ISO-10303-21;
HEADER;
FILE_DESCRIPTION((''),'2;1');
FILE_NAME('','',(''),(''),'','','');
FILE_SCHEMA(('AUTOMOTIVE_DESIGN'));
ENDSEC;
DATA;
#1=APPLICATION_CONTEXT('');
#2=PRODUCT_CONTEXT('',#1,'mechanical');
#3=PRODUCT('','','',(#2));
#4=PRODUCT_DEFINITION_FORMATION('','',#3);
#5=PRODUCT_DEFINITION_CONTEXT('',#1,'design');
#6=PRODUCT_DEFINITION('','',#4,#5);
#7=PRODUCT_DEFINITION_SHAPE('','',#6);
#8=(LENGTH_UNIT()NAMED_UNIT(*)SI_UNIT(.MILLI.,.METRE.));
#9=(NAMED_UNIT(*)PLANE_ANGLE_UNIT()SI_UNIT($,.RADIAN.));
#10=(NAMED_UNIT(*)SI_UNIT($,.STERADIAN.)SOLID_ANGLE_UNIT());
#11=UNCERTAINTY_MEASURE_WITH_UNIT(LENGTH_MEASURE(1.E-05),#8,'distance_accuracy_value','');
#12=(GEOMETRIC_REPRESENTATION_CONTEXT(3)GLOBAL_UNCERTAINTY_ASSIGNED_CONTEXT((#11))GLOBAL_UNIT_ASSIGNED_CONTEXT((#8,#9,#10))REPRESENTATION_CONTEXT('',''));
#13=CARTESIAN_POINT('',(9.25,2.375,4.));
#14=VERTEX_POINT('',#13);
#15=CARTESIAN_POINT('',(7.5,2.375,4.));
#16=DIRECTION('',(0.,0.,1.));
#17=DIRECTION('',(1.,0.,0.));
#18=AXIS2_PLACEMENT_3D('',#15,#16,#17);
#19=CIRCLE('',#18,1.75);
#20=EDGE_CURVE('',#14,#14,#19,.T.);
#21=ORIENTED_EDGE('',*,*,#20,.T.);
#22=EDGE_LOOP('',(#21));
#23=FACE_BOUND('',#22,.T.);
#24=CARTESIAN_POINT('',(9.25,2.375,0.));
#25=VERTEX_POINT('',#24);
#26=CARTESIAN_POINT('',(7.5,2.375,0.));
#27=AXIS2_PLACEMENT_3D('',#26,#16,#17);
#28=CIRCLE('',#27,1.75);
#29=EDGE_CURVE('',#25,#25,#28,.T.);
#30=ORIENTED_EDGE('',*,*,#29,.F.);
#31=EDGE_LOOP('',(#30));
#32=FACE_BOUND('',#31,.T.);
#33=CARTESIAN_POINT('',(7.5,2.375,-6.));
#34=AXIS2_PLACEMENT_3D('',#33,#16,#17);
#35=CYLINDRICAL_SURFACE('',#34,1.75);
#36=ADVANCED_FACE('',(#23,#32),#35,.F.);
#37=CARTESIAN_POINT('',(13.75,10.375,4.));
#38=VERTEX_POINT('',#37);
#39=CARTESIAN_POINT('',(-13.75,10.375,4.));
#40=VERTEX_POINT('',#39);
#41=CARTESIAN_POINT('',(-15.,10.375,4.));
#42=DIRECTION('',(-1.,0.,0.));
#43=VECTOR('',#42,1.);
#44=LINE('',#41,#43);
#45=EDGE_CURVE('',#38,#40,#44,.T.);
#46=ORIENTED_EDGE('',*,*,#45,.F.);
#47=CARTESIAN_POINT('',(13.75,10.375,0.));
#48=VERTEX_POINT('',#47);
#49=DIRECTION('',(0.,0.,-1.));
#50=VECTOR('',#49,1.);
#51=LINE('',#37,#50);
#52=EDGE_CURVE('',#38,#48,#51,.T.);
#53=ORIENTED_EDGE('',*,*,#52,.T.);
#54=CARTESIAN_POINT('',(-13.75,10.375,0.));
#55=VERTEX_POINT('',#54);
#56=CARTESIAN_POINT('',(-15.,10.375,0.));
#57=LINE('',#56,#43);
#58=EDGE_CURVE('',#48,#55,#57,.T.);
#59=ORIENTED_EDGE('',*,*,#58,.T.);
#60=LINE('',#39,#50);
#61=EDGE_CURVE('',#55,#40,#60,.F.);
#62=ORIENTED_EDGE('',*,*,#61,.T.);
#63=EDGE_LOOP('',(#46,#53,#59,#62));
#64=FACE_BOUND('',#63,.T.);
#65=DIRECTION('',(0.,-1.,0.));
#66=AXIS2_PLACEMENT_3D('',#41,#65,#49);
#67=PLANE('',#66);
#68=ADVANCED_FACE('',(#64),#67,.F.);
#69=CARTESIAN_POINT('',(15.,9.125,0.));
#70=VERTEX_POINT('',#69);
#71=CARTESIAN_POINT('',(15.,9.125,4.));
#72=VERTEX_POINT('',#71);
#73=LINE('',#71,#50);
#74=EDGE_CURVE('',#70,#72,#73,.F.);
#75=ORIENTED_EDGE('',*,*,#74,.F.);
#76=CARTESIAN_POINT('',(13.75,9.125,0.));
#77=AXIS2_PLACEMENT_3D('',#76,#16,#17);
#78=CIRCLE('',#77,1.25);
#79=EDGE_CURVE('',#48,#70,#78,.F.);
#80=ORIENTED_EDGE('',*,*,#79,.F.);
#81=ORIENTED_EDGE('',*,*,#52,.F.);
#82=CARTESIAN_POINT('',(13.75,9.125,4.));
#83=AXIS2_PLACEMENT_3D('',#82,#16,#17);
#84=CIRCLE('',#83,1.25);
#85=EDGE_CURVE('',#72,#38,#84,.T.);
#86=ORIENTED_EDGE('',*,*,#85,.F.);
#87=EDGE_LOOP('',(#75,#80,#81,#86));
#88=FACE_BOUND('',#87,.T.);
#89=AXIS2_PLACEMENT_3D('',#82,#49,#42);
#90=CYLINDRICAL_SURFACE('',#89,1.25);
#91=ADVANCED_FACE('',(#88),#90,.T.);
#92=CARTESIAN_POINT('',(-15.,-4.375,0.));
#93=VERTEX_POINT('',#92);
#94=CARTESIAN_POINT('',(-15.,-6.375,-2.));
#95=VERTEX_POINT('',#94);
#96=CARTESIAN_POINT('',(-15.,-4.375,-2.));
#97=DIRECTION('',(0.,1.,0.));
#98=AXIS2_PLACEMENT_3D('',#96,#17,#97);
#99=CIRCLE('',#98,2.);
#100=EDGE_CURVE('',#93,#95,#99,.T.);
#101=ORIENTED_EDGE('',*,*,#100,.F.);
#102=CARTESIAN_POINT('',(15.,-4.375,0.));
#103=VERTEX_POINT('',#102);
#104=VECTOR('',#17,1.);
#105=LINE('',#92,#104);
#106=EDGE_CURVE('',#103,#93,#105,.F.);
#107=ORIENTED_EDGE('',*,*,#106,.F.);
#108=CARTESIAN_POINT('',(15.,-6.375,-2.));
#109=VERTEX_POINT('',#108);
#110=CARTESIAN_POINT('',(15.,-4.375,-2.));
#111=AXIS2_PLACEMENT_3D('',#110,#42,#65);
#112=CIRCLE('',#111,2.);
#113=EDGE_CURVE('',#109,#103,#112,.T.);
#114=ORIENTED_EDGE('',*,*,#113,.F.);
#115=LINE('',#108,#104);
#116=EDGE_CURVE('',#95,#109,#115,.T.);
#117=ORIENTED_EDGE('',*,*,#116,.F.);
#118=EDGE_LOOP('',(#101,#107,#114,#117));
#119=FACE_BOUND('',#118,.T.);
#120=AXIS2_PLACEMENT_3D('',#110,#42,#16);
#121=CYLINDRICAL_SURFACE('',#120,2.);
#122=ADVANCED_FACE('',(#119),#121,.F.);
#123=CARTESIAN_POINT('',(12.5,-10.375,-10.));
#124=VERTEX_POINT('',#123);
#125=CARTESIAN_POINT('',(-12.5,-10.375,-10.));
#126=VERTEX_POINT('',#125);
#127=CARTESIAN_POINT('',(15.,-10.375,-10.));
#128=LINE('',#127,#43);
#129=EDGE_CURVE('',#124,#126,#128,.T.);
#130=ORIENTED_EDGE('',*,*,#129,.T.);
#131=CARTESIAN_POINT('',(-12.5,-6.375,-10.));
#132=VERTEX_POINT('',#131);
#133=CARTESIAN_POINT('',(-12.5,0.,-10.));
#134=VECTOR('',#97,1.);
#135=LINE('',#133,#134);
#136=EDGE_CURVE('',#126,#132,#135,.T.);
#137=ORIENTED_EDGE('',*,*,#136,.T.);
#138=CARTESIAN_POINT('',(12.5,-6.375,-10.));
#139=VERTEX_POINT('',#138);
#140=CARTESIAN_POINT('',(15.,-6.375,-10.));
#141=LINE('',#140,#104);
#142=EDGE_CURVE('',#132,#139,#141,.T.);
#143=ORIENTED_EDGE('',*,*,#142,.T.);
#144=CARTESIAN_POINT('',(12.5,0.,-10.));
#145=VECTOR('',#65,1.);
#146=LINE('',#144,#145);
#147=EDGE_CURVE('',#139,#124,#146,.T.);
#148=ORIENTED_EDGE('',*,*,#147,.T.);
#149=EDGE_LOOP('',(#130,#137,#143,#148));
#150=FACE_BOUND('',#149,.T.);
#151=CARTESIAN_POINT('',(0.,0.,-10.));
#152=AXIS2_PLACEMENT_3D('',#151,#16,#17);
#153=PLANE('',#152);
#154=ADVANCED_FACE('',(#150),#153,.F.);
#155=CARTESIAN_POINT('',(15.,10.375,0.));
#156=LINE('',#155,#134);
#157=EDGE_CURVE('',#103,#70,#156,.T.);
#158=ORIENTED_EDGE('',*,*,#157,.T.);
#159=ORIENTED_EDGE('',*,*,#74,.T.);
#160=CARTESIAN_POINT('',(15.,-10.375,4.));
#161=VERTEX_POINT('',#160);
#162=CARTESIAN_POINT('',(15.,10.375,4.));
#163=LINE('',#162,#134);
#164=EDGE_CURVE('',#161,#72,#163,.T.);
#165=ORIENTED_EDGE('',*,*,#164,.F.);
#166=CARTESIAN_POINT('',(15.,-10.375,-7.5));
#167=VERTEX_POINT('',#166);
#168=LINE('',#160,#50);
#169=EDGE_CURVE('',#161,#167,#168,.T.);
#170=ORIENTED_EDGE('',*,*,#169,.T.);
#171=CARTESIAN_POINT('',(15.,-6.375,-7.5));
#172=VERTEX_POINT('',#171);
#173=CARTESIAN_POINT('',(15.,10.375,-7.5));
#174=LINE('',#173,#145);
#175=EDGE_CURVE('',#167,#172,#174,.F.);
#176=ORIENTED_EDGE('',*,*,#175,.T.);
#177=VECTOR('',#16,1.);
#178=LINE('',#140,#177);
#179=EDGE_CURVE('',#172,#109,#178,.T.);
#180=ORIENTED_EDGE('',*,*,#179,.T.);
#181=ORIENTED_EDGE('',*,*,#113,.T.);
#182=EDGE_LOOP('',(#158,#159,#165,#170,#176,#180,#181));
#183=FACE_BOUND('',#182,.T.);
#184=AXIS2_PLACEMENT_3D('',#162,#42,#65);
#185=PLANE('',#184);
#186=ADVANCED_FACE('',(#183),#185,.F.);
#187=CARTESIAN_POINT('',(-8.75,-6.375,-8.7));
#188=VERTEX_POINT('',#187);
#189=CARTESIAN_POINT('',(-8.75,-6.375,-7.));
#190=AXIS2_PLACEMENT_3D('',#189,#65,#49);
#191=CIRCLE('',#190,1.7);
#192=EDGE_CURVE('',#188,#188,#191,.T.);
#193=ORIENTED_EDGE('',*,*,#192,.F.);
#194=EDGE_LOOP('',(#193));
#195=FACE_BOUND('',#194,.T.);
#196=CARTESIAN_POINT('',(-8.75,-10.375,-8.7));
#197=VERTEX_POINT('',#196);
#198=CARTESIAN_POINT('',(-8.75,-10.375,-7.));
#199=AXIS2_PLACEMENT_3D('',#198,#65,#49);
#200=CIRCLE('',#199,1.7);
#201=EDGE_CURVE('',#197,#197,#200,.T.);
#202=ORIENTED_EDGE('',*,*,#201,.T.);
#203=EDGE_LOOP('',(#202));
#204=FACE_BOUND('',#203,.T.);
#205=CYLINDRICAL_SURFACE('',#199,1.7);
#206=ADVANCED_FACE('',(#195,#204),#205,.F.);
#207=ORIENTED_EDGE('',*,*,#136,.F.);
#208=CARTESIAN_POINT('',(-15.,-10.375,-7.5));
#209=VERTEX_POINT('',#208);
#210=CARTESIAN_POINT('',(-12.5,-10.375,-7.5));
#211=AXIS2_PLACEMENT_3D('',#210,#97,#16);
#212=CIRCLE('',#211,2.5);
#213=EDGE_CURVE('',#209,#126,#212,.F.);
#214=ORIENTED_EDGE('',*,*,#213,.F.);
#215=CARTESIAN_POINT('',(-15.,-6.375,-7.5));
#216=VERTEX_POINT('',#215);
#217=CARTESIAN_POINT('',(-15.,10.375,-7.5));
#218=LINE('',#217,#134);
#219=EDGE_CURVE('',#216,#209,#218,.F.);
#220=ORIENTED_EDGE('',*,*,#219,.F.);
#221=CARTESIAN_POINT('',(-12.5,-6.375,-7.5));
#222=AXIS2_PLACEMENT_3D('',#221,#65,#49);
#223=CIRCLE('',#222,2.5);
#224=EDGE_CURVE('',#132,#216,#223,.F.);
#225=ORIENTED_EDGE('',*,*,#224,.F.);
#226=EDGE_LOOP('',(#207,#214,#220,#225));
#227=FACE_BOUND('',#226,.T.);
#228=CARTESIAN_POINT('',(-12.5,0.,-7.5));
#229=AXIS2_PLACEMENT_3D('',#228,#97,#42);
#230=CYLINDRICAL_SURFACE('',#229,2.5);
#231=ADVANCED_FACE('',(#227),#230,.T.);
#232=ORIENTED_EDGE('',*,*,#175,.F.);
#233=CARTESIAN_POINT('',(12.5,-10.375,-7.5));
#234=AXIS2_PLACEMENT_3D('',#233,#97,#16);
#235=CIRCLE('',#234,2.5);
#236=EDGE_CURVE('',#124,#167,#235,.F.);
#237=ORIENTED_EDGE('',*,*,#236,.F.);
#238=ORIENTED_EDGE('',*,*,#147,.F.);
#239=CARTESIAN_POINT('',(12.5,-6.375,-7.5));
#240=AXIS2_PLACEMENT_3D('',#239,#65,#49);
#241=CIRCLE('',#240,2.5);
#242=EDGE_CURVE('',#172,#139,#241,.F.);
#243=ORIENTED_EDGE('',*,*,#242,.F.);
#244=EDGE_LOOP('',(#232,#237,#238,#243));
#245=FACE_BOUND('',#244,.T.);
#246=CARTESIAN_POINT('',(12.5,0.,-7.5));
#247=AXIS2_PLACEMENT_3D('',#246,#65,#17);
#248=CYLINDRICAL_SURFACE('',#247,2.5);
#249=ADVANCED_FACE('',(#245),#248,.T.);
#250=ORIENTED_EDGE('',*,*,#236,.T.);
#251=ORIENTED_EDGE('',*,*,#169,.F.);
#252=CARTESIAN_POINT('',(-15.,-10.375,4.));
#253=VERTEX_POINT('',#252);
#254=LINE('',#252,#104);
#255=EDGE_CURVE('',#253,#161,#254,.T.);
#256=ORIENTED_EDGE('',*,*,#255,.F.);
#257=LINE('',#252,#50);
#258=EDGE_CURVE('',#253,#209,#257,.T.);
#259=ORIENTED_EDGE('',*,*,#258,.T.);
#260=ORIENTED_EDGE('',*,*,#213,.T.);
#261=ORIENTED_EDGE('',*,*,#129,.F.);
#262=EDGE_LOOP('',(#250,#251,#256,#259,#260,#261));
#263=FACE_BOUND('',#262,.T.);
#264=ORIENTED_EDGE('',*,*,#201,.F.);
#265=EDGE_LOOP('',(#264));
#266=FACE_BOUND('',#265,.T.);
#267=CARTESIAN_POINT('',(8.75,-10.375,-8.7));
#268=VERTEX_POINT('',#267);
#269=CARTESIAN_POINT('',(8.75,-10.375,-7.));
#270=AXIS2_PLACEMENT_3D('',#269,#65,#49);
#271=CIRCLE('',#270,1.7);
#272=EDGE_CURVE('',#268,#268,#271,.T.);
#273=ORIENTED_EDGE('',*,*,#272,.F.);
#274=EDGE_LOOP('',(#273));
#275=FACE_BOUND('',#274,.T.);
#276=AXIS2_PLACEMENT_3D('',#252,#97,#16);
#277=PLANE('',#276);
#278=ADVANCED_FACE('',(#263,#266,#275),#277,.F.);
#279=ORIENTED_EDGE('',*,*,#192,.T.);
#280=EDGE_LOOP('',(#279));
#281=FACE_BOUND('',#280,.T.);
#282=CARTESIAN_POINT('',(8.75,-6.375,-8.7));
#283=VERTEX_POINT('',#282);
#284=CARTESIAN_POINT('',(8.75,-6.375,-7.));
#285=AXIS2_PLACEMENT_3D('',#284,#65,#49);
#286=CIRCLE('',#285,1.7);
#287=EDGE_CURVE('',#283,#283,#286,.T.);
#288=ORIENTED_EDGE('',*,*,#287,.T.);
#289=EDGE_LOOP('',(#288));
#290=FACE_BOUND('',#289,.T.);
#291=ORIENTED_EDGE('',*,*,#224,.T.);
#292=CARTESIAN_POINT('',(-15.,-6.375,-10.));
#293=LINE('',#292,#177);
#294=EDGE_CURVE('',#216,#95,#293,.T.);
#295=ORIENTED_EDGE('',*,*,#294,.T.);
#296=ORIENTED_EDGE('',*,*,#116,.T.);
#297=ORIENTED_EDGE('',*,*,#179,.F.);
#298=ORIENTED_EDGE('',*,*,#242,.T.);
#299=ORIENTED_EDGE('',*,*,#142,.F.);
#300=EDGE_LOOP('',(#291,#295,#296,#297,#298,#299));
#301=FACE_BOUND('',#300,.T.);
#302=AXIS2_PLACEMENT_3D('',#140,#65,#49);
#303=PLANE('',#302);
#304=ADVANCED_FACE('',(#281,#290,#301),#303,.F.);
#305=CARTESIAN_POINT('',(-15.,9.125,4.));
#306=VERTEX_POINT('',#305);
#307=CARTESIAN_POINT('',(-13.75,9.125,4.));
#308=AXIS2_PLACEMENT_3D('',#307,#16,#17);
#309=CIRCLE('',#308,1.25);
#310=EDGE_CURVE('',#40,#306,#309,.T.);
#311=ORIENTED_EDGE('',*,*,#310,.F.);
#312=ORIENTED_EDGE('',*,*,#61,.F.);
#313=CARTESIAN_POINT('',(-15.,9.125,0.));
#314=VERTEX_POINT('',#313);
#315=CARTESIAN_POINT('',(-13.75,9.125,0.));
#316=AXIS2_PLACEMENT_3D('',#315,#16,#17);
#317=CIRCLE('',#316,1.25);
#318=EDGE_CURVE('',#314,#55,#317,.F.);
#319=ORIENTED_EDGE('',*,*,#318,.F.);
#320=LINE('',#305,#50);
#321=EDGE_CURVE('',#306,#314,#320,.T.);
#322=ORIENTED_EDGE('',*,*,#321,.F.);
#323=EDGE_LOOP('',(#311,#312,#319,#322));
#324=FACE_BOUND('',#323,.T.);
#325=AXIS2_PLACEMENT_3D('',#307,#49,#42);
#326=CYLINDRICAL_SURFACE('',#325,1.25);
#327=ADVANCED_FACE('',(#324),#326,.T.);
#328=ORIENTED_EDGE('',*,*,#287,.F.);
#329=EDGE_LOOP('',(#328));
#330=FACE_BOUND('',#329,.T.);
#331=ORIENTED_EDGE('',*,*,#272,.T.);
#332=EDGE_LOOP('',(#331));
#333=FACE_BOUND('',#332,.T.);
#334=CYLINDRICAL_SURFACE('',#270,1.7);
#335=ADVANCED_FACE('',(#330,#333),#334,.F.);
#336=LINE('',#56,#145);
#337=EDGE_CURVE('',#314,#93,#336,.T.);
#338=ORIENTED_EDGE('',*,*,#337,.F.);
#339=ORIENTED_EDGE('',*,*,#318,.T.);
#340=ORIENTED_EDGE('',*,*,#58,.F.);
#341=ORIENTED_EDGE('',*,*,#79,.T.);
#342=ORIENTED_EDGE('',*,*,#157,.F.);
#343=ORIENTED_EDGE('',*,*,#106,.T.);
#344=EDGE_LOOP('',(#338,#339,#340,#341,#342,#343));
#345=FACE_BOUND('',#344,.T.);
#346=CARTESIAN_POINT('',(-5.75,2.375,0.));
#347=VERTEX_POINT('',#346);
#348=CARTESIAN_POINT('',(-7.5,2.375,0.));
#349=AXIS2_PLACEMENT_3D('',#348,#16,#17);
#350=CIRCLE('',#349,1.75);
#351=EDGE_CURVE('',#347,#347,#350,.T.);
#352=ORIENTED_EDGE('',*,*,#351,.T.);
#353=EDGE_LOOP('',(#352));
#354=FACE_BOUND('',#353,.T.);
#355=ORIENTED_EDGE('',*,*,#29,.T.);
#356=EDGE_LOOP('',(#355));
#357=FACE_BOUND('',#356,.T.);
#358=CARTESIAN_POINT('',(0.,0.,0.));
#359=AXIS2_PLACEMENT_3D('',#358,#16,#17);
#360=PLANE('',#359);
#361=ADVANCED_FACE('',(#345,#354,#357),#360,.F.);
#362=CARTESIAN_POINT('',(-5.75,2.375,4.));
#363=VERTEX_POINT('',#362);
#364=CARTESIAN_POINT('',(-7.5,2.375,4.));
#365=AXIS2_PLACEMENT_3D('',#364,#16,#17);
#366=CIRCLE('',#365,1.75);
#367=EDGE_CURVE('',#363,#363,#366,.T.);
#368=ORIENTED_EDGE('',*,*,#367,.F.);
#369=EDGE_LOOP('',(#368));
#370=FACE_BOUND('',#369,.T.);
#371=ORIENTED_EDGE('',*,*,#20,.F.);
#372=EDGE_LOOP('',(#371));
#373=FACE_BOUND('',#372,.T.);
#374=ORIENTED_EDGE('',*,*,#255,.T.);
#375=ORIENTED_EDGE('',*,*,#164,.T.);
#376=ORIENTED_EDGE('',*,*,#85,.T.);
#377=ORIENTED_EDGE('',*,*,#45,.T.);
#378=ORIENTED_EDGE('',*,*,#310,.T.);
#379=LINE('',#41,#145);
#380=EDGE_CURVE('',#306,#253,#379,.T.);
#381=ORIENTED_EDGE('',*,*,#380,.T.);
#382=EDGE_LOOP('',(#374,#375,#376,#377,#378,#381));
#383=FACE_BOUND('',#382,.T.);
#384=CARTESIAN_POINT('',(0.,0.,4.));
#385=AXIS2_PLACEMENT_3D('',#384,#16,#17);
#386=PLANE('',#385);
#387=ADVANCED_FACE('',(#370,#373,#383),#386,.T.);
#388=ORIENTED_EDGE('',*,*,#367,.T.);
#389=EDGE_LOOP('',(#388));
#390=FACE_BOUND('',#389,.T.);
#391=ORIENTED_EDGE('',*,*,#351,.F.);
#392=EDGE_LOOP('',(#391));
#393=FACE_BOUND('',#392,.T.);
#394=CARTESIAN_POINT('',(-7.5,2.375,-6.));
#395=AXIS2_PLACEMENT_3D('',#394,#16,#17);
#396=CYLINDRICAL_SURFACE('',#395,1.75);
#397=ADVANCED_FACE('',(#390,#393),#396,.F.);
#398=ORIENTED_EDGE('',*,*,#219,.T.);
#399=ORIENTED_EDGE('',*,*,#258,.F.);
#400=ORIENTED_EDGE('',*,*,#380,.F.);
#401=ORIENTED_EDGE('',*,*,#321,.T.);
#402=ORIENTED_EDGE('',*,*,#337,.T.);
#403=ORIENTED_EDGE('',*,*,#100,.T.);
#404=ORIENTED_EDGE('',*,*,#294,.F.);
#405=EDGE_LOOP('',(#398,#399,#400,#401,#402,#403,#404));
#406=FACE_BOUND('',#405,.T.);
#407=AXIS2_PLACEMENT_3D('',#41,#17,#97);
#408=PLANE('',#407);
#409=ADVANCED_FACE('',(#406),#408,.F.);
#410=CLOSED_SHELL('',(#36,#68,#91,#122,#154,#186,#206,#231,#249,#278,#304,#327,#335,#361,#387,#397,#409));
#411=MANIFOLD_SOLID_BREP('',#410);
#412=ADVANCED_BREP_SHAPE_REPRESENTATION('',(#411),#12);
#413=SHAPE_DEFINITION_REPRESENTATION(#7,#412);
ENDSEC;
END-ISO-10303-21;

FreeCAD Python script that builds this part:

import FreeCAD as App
import Part
import Sketcher

V = App.Vector
Q = App.Units.Quantity


def edges_at(feature, points):
    """Names of the edges that pass closest to the given points."""
    edges = feature.Shape.Edges
    near = lambda p: min(range(len(edges)), key=lambda i: edges[i].distToShape(Part.Vertex(*p))[0])
    return sorted({f"Edge{near(p) + 1}" for p in points})


def add_polygon(sketch, points):
    """Adds a closed chain of lines whose ends are joined by coincident constraints."""
    first, n = sketch.GeometryCount, len(points)
    for a, b in zip(points, points[1:] + points[:1]):
        sketch.addGeometry(Part.LineSegment(App.Vector(*a, 0), App.Vector(*b, 0)), False)
    for i in range(n):
        sketch.addConstraint(Sketcher.Constraint("Coincident", first + i, 2, first + (i + 1) % n, 1))

doc = App.newDocument("Part")
params = doc.addObject("Spreadsheet::Sheet", "Params")
for row, (alias, value) in enumerate([
    ("sketch1_width", "30 mm"),
    ("sketch1_height", "20.75 mm"),
    ("pad1_length", "4 mm"),
    ("fillet_radius", "1.25 mm"),
    ("sketch2_diameter", "3.5 mm"),
    ("pocket1_length", "10 mm"),
    ("sketch3_width", "30 mm"),
    ("sketch3_height", "4 mm"),
    ("pad2_length", "10 mm"),
    ("fillet2_radius", "2.5 mm"),
    ("fillet3_radius", "2 mm"),
    ("sketch4_diameter", "3.4 mm"),
    ("hole_diameter", "3.4 mm"),
    ("hole_depth", "16 mm"),
], start=1):
    params.set(f"A{row}", alias)
    params.set(f"B{row}", "=" + value)
    params.setAlias(f"B{row}", alias)

body = doc.addObject("PartDesign::Body", "Body")

sketch1 = body.newObject("Sketcher::SketchObject", "Sketch")
sketch1.AttachmentSupport = (doc.getObject("XY_Plane"), [""])
sketch1.MapMode = "FlatFace"
add_polygon(sketch1, [(-15, 10), (-15, -10), (15, -10), (15, 10)])
sketch1.addConstraint([
    Sketcher.Constraint("Vertical", 0),
    Sketcher.Constraint("Horizontal", 1),
    Sketcher.Constraint("Vertical", 2),
    Sketcher.Constraint("Horizontal", 3),
    Sketcher.Constraint("Symmetric", 0, 2, 2, 2, -1, 1),
    Sketcher.Constraint("DistanceX", 1, 1, 1, 2, Q("30 mm")),
    Sketcher.Constraint("DistanceY", 0, 2, 0, 1, Q("20.75 mm")),
])
sketch1.setExpression("Constraints[9]", "Params.sketch1_width")
sketch1.setExpression("Constraints[10]", "Params.sketch1_height")
pad1 = body.newObject("PartDesign::Pad", "Pad")
pad1.Profile = sketch1
pad1.setExpression("Length", "Params.pad1_length")
doc.recompute()

fillet = body.newObject("PartDesign::Fillet", "Fillet")
fillet.Base = (pad1, edges_at(pad1, [(-15, 10.375, 2), (15, 10.375, 2)]))
fillet.setExpression("Radius", "Params.fillet_radius")

sketch2 = body.newObject("Sketcher::SketchObject", "Sketch001")
sketch2.AttachmentSupport = (doc.getObject("XY_Plane"), [""])
sketch2.MapMode = "FlatFace"
sketch2.AttachmentOffset = App.Placement(V(0, 0, 4), App.Rotation())
sketch2.addGeometry([
    Part.Circle(V(-7.5, 2.4, 0), V(0, 0, 1), 1.8),
    Part.Circle(V(7.5, 2.4, 0), V(0, 0, 1), 1.8),
], False)
sketch2.addConstraint([
    Sketcher.Constraint("Equal", 0, 1),
    Sketcher.Constraint("Symmetric", 0, 3, 1, 3, -2),
    Sketcher.Constraint("Diameter", 0, Q("3.5 mm")),
    Sketcher.Constraint("DistanceX", 0, 3, 1, 3, Q("15 mm")),
    Sketcher.Constraint("DistanceY", -1, 1, 0, 3, Q("2.375 mm")),
])
sketch2.setExpression("Constraints[2]", "Params.sketch2_diameter")
pocket1 = body.newObject("PartDesign::Pocket", "Pocket")
pocket1.Profile = sketch2
pocket1.setExpression("Length", "Params.pocket1_length")

sketch3 = body.newObject("Sketcher::SketchObject", "Sketch002")
sketch3.AttachmentSupport = (doc.getObject("XY_Plane"), [""])
sketch3.MapMode = "FlatFace"
add_polygon(sketch3, [(15, -6.4), (15, -10.4), (-15, -10.4), (-15, -6.4)])
sketch3.addConstraint([
    Sketcher.Constraint("Vertical", 0),
    Sketcher.Constraint("Horizontal", 1),
    Sketcher.Constraint("Vertical", 2),
    Sketcher.Constraint("Horizontal", 3),
    Sketcher.Constraint("DistanceX", 1, 2, 1, 1, Q("30 mm")),
    Sketcher.Constraint("DistanceY", 0, 2, 0, 1, Q("4 mm")),
    Sketcher.Constraint("DistanceX", -1, 1, 0, 2, Q("15 mm")),
    Sketcher.Constraint("DistanceY", 0, 2, -1, 1, Q("10.375 mm")),
])
sketch3.setExpression("Constraints[8]", "Params.sketch3_width")
sketch3.setExpression("Constraints[9]", "Params.sketch3_height")
pad2 = body.newObject("PartDesign::Pad", "Pad001")
pad2.Profile = sketch3
pad2.setExpression("Length", "Params.pad2_length")
pad2.Reversed = True
doc.recompute()

fillet2 = body.newObject("PartDesign::Fillet", "Fillet001")
fillet2.Base = (pad2, edges_at(pad2, [(15, -8.375, -10), (-15, -8.375, -10)]))
fillet2.setExpression("Radius", "Params.fillet2_radius")
doc.recompute()

fillet3 = body.newObject("PartDesign::Fillet", "Fillet002")
fillet3.Base = (fillet2, edges_at(fillet2, [(0, -6.375, 0)]))
fillet3.setExpression("Radius", "Params.fillet3_radius")

sketch4 = body.newObject("Sketcher::SketchObject", "Sketch003")
sketch4.AttachmentSupport = (doc.getObject("XZ_Plane"), [""])
sketch4.MapMode = "FlatFace"
sketch4.AttachmentOffset = App.Placement(V(0, 0, 10.375), App.Rotation())
sketch4.addGeometry([
    Part.Circle(V(8.8, -7, 0), V(0, 0, 1), 1.7),
    Part.Circle(V(-8.8, -7, 0), V(0, 0, 1), 1.7),
], False)
sketch4.addConstraint([
    Sketcher.Constraint("Equal", 0, 1),
    Sketcher.Constraint("Symmetric", 0, 3, 1, 3, -2),
    Sketcher.Constraint("Diameter", 0, Q("3.4 mm")),
    Sketcher.Constraint("DistanceY", 0, 3, -1, 1, Q("7 mm")),
    Sketcher.Constraint("DistanceX", 1, 3, 0, 3, Q("17.5 mm")),
])
sketch4.setExpression("Constraints[2]", "Params.sketch4_diameter")
doc.recompute()
hole = body.newObject("PartDesign::Hole", "Hole")
hole.Profile = sketch4
hole.ThreadType = "None"
hole.setExpression("Diameter", "Params.hole_diameter")
hole.DepthType = "Dimension"
hole.setExpression("Depth", "Params.hole_depth")
hole.DrillPoint = "Angled"
hole.DrillPointAngle = 118

doc.recompute()
